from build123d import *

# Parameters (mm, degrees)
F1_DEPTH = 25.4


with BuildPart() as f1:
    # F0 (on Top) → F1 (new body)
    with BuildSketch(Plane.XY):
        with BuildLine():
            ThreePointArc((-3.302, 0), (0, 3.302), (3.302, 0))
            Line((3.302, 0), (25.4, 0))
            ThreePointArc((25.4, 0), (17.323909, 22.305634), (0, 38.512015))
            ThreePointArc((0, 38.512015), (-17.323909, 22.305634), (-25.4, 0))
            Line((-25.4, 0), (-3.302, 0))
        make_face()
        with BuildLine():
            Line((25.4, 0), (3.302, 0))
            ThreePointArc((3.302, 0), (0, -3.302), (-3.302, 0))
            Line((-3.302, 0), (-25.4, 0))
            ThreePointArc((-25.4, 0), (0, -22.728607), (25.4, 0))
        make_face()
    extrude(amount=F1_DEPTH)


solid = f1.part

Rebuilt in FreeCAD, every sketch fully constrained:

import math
import FreeCAD as App
import Part
import Sketcher
Q = App.Units.Quantity

doc = App.newDocument("Part")
body = doc.addObject("PartDesign::Body", "Body")

# Sketch on XY plane
sketch1 = body.newObject("Sketcher::SketchObject", "Sketch")
sketch1.AttachmentSupport = (doc.getObject("XY_Plane"), [""])
sketch1.MapMode = "FlatFace"
sketch1.addGeometry([
    Part.ArcOfCircle(Part.Circle(App.Vector(-25.1, -5.7, 0), App.Vector(0, 0, 1), 50.8), math.radians(6), math.radians(60)),
    Part.ArcOfCircle(Part.Circle(App.Vector(25.1, -5.7, 0), App.Vector(0, 0, 1), 50.8), math.radians(120), math.radians(174)),
    Part.ArcOfCircle(Part.Circle(App.Vector(0, 2.8, 0), App.Vector(0, 0, 1), 25.6), math.radians(-174), math.radians(-6)),
    Part.Circle(App.Vector(0, 0, 0), App.Vector(0, 0, 1), 3.3),
], False)
sketch1.addConstraint([
    Sketcher.Constraint("Coincident", 0, 2, 1, 1),
    Sketcher.Constraint("Coincident", 1, 2, 2, 1),
    Sketcher.Constraint("Coincident", 2, 2, 0, 1),
    Sketcher.Constraint("Coincident", 3, 3, -1, 1),
    Sketcher.Constraint("Equal", 0, 1),
    Sketcher.Constraint("Symmetric", 1, 2, 2, 2, -1, 1),
    Sketcher.Constraint("Symmetric", 0, 3, 1, 3, -2),
    Sketcher.Constraint("Radius", 0, Q("2.0000001 in")),
    Sketcher.Constraint("Diameter", 3, Q("0.26 in")),
    Sketcher.Constraint("DistanceX", 1, 2, -1, 1, Q("1 in")),
    Sketcher.Constraint("Radius", 2, Q("25.55699 mm")),
    Sketcher.Constraint("DistanceX", 0, 3, 1, 3, Q("50.166651 mm")),
])
pad1 = body.newObject("PartDesign::Pad", "Pad")
pad1.Profile = sketch1
pad1.Length = Q("1 in")

doc.recompute()
